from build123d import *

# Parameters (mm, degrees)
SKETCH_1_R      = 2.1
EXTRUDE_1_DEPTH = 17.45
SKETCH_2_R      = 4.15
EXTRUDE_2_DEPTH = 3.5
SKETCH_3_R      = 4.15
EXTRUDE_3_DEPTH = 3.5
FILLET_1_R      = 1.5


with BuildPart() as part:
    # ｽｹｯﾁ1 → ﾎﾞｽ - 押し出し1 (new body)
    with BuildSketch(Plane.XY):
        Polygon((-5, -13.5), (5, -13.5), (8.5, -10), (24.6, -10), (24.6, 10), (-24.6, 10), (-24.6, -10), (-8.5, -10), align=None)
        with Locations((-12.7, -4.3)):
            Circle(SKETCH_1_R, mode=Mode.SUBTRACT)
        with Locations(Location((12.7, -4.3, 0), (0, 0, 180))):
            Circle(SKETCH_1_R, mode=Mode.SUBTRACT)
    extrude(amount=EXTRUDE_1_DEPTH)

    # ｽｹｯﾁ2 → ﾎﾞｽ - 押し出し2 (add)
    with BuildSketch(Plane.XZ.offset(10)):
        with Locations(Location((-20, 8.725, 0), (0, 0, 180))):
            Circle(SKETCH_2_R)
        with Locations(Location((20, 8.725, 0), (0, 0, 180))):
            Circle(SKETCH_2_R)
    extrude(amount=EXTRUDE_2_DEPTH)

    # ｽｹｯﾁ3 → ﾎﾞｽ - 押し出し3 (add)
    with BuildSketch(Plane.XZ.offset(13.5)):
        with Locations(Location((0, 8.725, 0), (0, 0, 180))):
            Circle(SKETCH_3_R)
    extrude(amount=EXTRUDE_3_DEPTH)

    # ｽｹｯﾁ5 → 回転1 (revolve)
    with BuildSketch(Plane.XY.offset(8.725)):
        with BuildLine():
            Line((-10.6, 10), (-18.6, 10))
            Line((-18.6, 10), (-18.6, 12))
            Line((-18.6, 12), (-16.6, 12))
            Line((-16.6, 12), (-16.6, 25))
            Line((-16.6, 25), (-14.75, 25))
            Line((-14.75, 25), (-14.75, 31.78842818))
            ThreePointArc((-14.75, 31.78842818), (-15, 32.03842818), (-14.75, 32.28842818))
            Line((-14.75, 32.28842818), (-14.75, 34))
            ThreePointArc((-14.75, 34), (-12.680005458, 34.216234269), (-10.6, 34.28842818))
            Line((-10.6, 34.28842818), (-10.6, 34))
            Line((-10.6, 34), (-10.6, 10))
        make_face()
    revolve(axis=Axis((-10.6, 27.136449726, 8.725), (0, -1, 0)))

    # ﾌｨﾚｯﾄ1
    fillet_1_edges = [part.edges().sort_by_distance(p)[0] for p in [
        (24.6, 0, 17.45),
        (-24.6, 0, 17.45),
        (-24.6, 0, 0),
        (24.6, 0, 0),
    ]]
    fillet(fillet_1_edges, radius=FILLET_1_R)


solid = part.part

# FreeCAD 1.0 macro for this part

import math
import FreeCAD as App
import Part
import Sketcher

V = App.Vector


def edges_at(feature, points):
    """Names of the edges that pass closest to the given points."""
    edges = feature.Shape.Edges
    near = lambda p: min(range(len(edges)), key=lambda i: edges[i].distToShape(Part.Vertex(*p))[0])
    return sorted({f"Edge{near(p) + 1}" for p in points})

doc = App.newDocument("Part")
body = doc.addObject("PartDesign::Body", "Body")

# Sketch on XY plane
sketch1 = body.newObject("Sketcher::SketchObject", "Sketch")
sketch1.AttachmentSupport = (doc.getObject("XY_Plane"), [""])
sketch1.MapMode = "FlatFace"
sketch1.addGeometry([
    Part.LineSegment(V(-5, -13.5, 0), V(5, -13.5, 0)),  # 0
    Part.LineSegment(V(5, -13.5, 0), V(8.5, -10, 0)),  # 1
    Part.LineSegment(V(8.5, -10, 0), V(24.6, -10, 0)),  # 2
    Part.LineSegment(V(24.6, -10, 0), V(24.6, 10, 0)),  # 3
    Part.LineSegment(V(24.6, 10, 0), V(-24.6, 10, 0)),  # 4
    Part.LineSegment(V(-24.6, 10, 0), V(-24.6, -10, 0)),  # 5
    Part.LineSegment(V(-24.6, -10, 0), V(-8.5, -10, 0)),  # 6
    Part.LineSegment(V(-8.5, -10, 0), V(-5, -13.5, 0)),  # 7
    Part.Circle(V(-12.7, -4.3, 0), V(0, 0, 1), 2.1),  # 8
    Part.Circle(V(12.7, -4.3, 0), V(0, 0, 1), 2.1),  # 9
], False)
sketch1.addConstraint([
    Sketcher.Constraint("Coincident", 0, 2, 1, 1),
    Sketcher.Constraint("Coincident", 1, 2, 2, 1),
    Sketcher.Constraint("Coincident", 2, 2, 3, 1),
    Sketcher.Constraint("Coincident", 3, 2, 4, 1),
    Sketcher.Constraint("Coincident", 4, 2, 5, 1),
    Sketcher.Constraint("Coincident", 5, 2, 6, 1),
    Sketcher.Constraint("Coincident", 6, 2, 7, 1),
    Sketcher.Constraint("Coincident", 7, 2, 0, 1),
    Sketcher.Constraint("Horizontal", 0),
    Sketcher.Constraint("Horizontal", 2),
    Sketcher.Constraint("Vertical", 3),
    Sketcher.Constraint("Horizontal", 4),
    Sketcher.Constraint("Vertical", 5),
    Sketcher.Constraint("Horizontal", 6),
    Sketcher.Constraint("Equal", 8, 9),
    Sketcher.Constraint("Symmetric", 2, 2, 4, 2, -1, 1),
    Sketcher.Constraint("Symmetric", 8, 3, 9, 3, -2),
    Sketcher.Constraint("Symmetric", 1, 2, 6, 2, -2),
    Sketcher.Constraint("Perpendicular", 1, 7),
    Sketcher.Constraint("Equal", 1, 7),
    Sketcher.Constraint("Diameter", 8, 4.2),
    Sketcher.Constraint("DistanceX", 0, 1, 0, 2, 10.0),
    Sketcher.Constraint("DistanceY", 3, 1, 3, 2, 20.0),
    Sketcher.Constraint("DistanceX", 2, 1, 2, 2, 16.1),
    Sketcher.Constraint("DistanceX", 4, 2, 4, 1, 49.2),
    Sketcher.Constraint("DistanceX", 8, 3, -1, 1, 12.7),
    Sketcher.Constraint("DistanceY", 8, 3, -1, 1, 4.3),
])
pad1 = body.newObject("PartDesign::Pad", "Pad")
pad1.Profile = sketch1
pad1.Length = 17.45

# Sketch on XZ plane
sketch2 = body.newObject("Sketcher::SketchObject", "Sketch001")
sketch2.AttachmentSupport = (doc.getObject("XZ_Plane"), [""])
sketch2.MapMode = "FlatFace"
sketch2.AttachmentOffset = App.Placement(V(0, 0, 10), App.Rotation())
sketch2.addGeometry([
    Part.Circle(V(-20, 8.725, 0), V(0, 0, 1), 4.15),
    Part.Circle(V(20, 8.725, 0), V(0, 0, 1), 4.15),
], False)
sketch2.addConstraint([
    Sketcher.Constraint("Equal", 0, 1),
    Sketcher.Constraint("Symmetric", 0, 3, 1, 3, -2),
    Sketcher.Constraint("Diameter", 0, 8.3),
    Sketcher.Constraint("DistanceX", 0, 3, -1, 1, 20.0),
    Sketcher.Constraint("DistanceY", -1, 1, 0, 3, 8.725),
])
pad2 = body.newObject("PartDesign::Pad", "Pad001")
pad2.Profile = sketch2
pad2.Length = 3.5

# Sketch on XZ plane
sketch3 = body.newObject("Sketcher::SketchObject", "Sketch002")
sketch3.AttachmentSupport = (doc.getObject("XZ_Plane"), [""])
sketch3.MapMode = "FlatFace"
sketch3.AttachmentOffset = App.Placement(V(0, 0, 13.5), App.Rotation())
sketch3.addGeometry(Part.Circle(V(0, 8.725, 0), V(0, 0, 1), 4.15), False)
sketch3.addConstraint([
    Sketcher.Constraint("PointOnObject", 0, 3, -2),
    Sketcher.Constraint("Diameter", 0, 8.3),
    Sketcher.Constraint("DistanceY", -1, 1, 0, 3, 8.725),
])
pad3 = body.newObject("PartDesign::Pad", "Pad002")
pad3.Profile = sketch3
pad3.Length = 3.5

# Sketch on XY plane
sketch4 = body.newObject("Sketcher::SketchObject", "Sketch003")
sketch4.AttachmentSupport = (doc.getObject("XY_Plane"), [""])
sketch4.MapMode = "FlatFace"
sketch4.AttachmentOffset = App.Placement(V(0, 0, 8.725), App.Rotation())
sketch4.addGeometry([
    Part.LineSegment(V(-18.6, 10, 0), V(-10.6, 10, 0)),  # 0
    Part.LineSegment(V(-10.6, 10, 0), V(-10.6, 34.288428, 0)),  # 1
    Part.ArcOfCircle(Part.Circle(V(-10.6, 4.288428, 0), V(0, 0, 1), 30), math.radians(90), math.radians(97.951415)),  # 2
    Part.LineSegment(V(-14.75, 34, 0), V(-14.75, 32.288428, 0)),  # 3
    Part.ArcOfCircle(Part.Circle(V(-14.75, 32.038428, 0), V(0, 0, 1), 0.25), math.radians(90), math.radians(270)),  # 4
    Part.LineSegment(V(-14.75, 31.788428, 0), V(-14.75, 25, 0)),  # 5
    Part.LineSegment(V(-14.75, 25, 0), V(-16.6, 25, 0)),  # 6
    Part.LineSegment(V(-16.6, 25, 0), V(-16.6, 12, 0)),  # 7
    Part.LineSegment(V(-16.6, 12, 0), V(-18.6, 12, 0)),  # 8
    Part.LineSegment(V(-18.6, 12, 0), V(-18.6, 10, 0)),  # 9
], False)
sketch4.addGeometry(Part.LineSegment(V(-10.6, 34.288428, 0), V(-10.6, 4.288428, 0)), True)  # axis
sketch4.addConstraint([
    Sketcher.Constraint("Coincident", 0, 2, 1, 1),
    Sketcher.Constraint("Coincident", 1, 2, 2, 1),
    Sketcher.Constraint("Coincident", 2, 2, 3, 1),
    Sketcher.Constraint("Coincident", 3, 2, 4, 1),
    Sketcher.Constraint("Coincident", 4, 2, 5, 1),
    Sketcher.Constraint("Coincident", 5, 2, 6, 1),
    Sketcher.Constraint("Coincident", 6, 2, 7, 1),
    Sketcher.Constraint("Coincident", 7, 2, 8, 1),
    Sketcher.Constraint("Coincident", 8, 2, 9, 1),
    Sketcher.Constraint("Coincident", 9, 2, 0, 1),
    Sketcher.Constraint("Horizontal", 0),
    Sketcher.Constraint("Vertical", 1),
    Sketcher.Constraint("Vertical", 3),
    Sketcher.Constraint("Vertical", 5),
    Sketcher.Constraint("Horizontal", 6),
    Sketcher.Constraint("Vertical", 7),
    Sketcher.Constraint("Horizontal", 8),
    Sketcher.Constraint("Vertical", 9),
    Sketcher.Constraint("Vertical", 10),
    Sketcher.Constraint("Coincident", 10, 1, 1, 2),
    Sketcher.Constraint("Coincident", 10, 2, 2, 3),
    Sketcher.Constraint("Vertical", 4, 3, 2, 2),
    Sketcher.Constraint("Vertical", 3, 2, 4, 2),
    Sketcher.Constraint("Equal", 8, 9),
    Sketcher.Constraint("Radius", 2, 30.0),
    Sketcher.Constraint("DistanceX", 0, 1, 0, 2, 8.0),
    Sketcher.Constraint("DistanceX", 8, 2, 8, 1, 2.0),
    Sketcher.Constraint("DistanceY", 7, 2, 7, 1, 13.0),
    Sketcher.Constraint("Radius", 4, 0.25),
    Sketcher.Constraint("DistanceY", -1, 1, 0, 2, 10.0),
    Sketcher.Constraint("DistanceY", -1, 1, 2, 2, 34.0),
    Sketcher.Constraint("DistanceY", 3, 2, 1, 2, 2.0),
    Sketcher.Constraint("DistanceX", 6, 2, 6, 1, 1.85),
    Sketcher.Constraint("DistanceX", 2, 3, -1, 1, 10.6),
])
revolution = body.newObject("PartDesign::Revolution", "Revolution")
revolution.Profile = sketch4
revolution.ReferenceAxis = (sketch4, ["Axis0"])
revolution.Angle = 360
doc.recompute()

fillet = body.newObject("PartDesign::Fillet", "Fillet")
fillet.Base = (revolution, edges_at(revolution, [
    (24.6, 0, 17.45),
    (-24.6, 0, 17.45),
    (-24.6, 0, 0),
    (24.6, 0, 0),
]))
fillet.Radius = 1.5

doc.recompute()
